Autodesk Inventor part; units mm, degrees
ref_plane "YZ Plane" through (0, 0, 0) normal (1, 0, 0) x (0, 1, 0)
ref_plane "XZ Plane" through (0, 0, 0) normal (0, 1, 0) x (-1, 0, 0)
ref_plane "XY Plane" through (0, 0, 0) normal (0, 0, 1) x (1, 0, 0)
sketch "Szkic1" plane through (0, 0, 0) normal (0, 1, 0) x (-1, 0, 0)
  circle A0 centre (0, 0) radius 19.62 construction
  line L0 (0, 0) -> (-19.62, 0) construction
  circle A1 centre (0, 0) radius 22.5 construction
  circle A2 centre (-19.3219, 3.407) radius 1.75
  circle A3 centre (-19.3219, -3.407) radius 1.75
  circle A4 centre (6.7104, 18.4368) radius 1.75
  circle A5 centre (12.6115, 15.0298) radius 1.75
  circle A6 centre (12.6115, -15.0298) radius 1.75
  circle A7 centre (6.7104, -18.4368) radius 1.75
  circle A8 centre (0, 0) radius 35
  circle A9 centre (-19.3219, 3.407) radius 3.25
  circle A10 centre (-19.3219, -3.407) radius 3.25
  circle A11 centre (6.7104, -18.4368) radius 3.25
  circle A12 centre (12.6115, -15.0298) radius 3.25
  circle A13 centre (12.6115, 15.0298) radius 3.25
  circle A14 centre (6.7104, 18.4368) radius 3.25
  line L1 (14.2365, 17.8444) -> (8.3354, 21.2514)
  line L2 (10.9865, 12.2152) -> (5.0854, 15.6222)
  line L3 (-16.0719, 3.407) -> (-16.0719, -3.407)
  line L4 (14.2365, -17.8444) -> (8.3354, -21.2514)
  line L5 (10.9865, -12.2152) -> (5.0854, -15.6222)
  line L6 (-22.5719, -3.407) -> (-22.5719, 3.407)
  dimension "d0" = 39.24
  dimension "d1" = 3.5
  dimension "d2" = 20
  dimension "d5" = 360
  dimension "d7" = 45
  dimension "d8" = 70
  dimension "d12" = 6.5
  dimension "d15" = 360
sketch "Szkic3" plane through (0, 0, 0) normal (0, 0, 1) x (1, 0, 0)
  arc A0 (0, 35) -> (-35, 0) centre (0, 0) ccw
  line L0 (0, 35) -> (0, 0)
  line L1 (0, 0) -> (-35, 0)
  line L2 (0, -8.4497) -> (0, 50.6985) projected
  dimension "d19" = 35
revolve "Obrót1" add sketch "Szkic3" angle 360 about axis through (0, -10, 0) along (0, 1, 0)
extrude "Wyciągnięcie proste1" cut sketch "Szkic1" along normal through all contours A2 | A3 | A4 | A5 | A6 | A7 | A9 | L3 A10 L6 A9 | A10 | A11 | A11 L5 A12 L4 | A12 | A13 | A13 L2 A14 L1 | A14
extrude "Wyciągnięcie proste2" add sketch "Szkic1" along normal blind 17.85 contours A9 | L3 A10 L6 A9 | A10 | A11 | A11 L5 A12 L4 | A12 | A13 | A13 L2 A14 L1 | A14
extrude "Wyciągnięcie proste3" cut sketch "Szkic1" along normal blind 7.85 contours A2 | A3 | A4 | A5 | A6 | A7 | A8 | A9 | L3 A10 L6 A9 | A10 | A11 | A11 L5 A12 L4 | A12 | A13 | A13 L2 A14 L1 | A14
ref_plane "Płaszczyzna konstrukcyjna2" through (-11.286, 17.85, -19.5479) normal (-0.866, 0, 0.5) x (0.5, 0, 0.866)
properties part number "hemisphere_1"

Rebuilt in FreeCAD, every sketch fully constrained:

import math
import FreeCAD as App
import Part
import Sketcher
from FreeCAD import Vector
Q = App.Units.Quantity

doc = App.newDocument("Part")
body = doc.addObject("PartDesign::Body", "Body")

sketch1 = body.newObject("Sketcher::SketchObject", "Sketch")
sketch1.AttachmentSupport = (doc.getObject("XY_Plane"), [""])
sketch1.MapMode = "FlatFace"
sketch1.addGeometry(Part.LineSegment(Vector(0, 0, 0), Vector(0, 35, 0)), False)
sketch1.addGeometry(Part.ArcOfCircle(Part.Circle(Vector(0, 0, 0), Vector(0, 0, 1), 35), math.radians(90), math.radians(180)), False)
sketch1.addGeometry(Part.LineSegment(Vector(-35, 0, 0), Vector(0, 0, 0)), False)
sketch1.addConstraint(Sketcher.Constraint("Coincident", 0, 2, 1, 1))
sketch1.addConstraint(Sketcher.Constraint("Coincident", 1, 2, 2, 1))
sketch1.addConstraint(Sketcher.Constraint("Coincident", 2, 2, 0, 1))
sketch1.addConstraint(Sketcher.Constraint("Vertical", 0))
sketch1.addConstraint(Sketcher.Constraint("Horizontal", 2))
sketch1.addConstraint(Sketcher.Constraint("Coincident", 1, 3, -1, 1))
sketch1.addConstraint(Sketcher.Constraint("Coincident", 2, 2, -1, 1))
sketch1.addConstraint(Sketcher.Constraint("Radius", 1, Q("35 mm")))
revolution = body.newObject("PartDesign::Revolution", "Revolution")
revolution.Profile = sketch1
revolution.ReferenceAxis = (sketch1, ["V_Axis"])
revolution.Angle = 360

sketch2 = body.newObject("Sketcher::SketchObject", "Sketch001")
sketch2.AttachmentSupport = (doc.getObject("XZ_Plane"), [""])
sketch2.MapMode = "FlatFace"
sketch2.addGeometry(Part.ArcOfCircle(Part.Circle(Vector(19.3219, 3.407, 0), Vector(0, 0, 1), 3.25), math.radians(0), math.radians(180)), False)
sketch2.addGeometry(Part.LineSegment(Vector(22.5719, 3.407, 0), Vector(22.5719, -3.407, 0)), False)
sketch2.addGeometry(Part.ArcOfCircle(Part.Circle(Vector(19.3219, -3.407, 0), Vector(0, 0, 1), 3.25), math.radians(180), math.radians(360)), False)
sketch2.addGeometry(Part.LineSegment(Vector(16.0719, -3.407, 0), Vector(16.0719, 3.407, 0)), False)
sketch2.addGeometry(Part.ArcOfCircle(Part.Circle(Vector(-6.7104, 18.4368, 0), Vector(0, 0, 1), 3.25), math.radians(-60.000154), math.radians(119.999846)), False)
sketch2.addGeometry(Part.LineSegment(Vector(-5.0854, 15.6222, 0), Vector(-10.9865, 12.2152, 0)), False)
sketch2.addGeometry(Part.ArcOfCircle(Part.Circle(Vector(-12.6115, 15.0298, 0), Vector(0, 0, 1), 3.25), math.radians(119.999846), math.radians(299.999846)), False)
sketch2.addGeometry(Part.LineSegment(Vector(-14.2365, 17.8444, 0), Vector(-8.3354, 21.2514, 0)), False)
sketch2.addGeometry(Part.LineSegment(Vector(-10.9865, -12.2152, 0), Vector(-5.0854, -15.6222, 0)), False)
sketch2.addGeometry(Part.ArcOfCircle(Part.Circle(Vector(-6.7104, -18.4368, 0), Vector(0, 0, 1), 3.25), math.radians(-119.999846), math.radians(60.000154)), False)
sketch2.addGeometry(Part.LineSegment(Vector(-8.3354, -21.2514, 0), Vector(-14.2365, -17.8444, 0)), False)
sketch2.addGeometry(Part.ArcOfCircle(Part.Circle(Vector(-12.6115, -15.0298, 0), Vector(0, 0, 1), 3.25), math.radians(60.000154), math.radians(240.000154)), False)
sketch2.addConstraint(Sketcher.Constraint("Tangent", 0, 1, 1, 1))
sketch2.addConstraint(Sketcher.Constraint("Tangent", 1, 2, 2, 2))
sketch2.addConstraint(Sketcher.Constraint("Tangent", 2, 1, 3, 1))
sketch2.addConstraint(Sketcher.Constraint("Tangent", 3, 2, 0, 2))
sketch2.addConstraint(Sketcher.Constraint("Tangent", 4, 1, 5, 1))
sketch2.addConstraint(Sketcher.Constraint("Tangent", 5, 2, 6, 2))
sketch2.addConstraint(Sketcher.Constraint("Tangent", 6, 1, 7, 1))
sketch2.addConstraint(Sketcher.Constraint("Tangent", 7, 2, 4, 2))
sketch2.addConstraint(Sketcher.Constraint("Tangent", 8, 2, 9, 2))
sketch2.addConstraint(Sketcher.Constraint("Tangent", 9, 1, 10, 1))
sketch2.addConstraint(Sketcher.Constraint("Tangent", 10, 2, 11, 2))
sketch2.addConstraint(Sketcher.Constraint("Tangent", 11, 1, 8, 1))
sketch2.addConstraint(Sketcher.Constraint("Vertical", 1))
sketch2.addConstraint(Sketcher.Constraint("Vertical", 3))
sketch2.addConstraint(Sketcher.Constraint("Equal", 2, 4))
sketch2.addConstraint(Sketcher.Constraint("Equal", 4, 6))
sketch2.addConstraint(Sketcher.Constraint("Equal", 6, 9))
sketch2.addConstraint(Sketcher.Constraint("Equal", 9, 11))
sketch2.addConstraint(Sketcher.Constraint("Symmetric", 4, 3, 9, 3, -1))
sketch2.addConstraint(Sketcher.Constraint("Symmetric", 6, 3, 11, 3, -1))
sketch2.addConstraint(Sketcher.Constraint("Radius", 0, Q("3.25 mm")))
sketch2.addConstraint(Sketcher.Constraint("Angle", 5, Q("-150 deg")))
sketch2.addConstraint(Sketcher.Constraint("DistanceY", 1, 2, 1, 1, Q("6.814 mm")))
sketch2.addConstraint(Sketcher.Constraint("Distance", 5, Q("6.814 mm")))
sketch2.addConstraint(Sketcher.Constraint("DistanceX", -1, 1, 0, 3, Q("19.322 mm")))
sketch2.addConstraint(Sketcher.Constraint("DistanceY", -1, 1, 0, 3, Q("3.407 mm")))
sketch2.addConstraint(Sketcher.Constraint("DistanceY", 11, 3, 5, 2, Q("27.245 mm")))
sketch2.addConstraint(Sketcher.Constraint("DistanceX", 4, 3, -1, 1, Q("6.7104 mm")))
pocket1 = body.newObject("PartDesign::Pocket", "Pocket")
pocket1.Profile = sketch2
pocket1.Type = "ThroughAll"

sketch3 = body.newObject("Sketcher::SketchObject", "Sketch002")
sketch3.AttachmentSupport = (doc.getObject("XZ_Plane"), [""])
sketch3.MapMode = "FlatFace"
sketch3.addGeometry(Part.ArcOfCircle(Part.Circle(Vector(19.3219, 3.407, 0), Vector(0, 0, 1), 3.25), math.radians(0), math.radians(180)), False)
sketch3.addGeometry(Part.LineSegment(Vector(22.5719, 3.407, 0), Vector(22.5719, -3.407, 0)), False)
sketch3.addGeometry(Part.ArcOfCircle(Part.Circle(Vector(19.3219, -3.407, 0), Vector(0, 0, 1), 3.25), math.radians(180), math.radians(360)), False)
sketch3.addGeometry(Part.LineSegment(Vector(16.0719, -3.407, 0), Vector(16.0719, 3.407, 0)), False)
sketch3.addGeometry(Part.Circle(Vector(19.3219, 3.407, 0), Vector(0, 0, 1), 1.75), False)
sketch3.addGeometry(Part.Circle(Vector(19.3219, -3.407, 0), Vector(0, 0, 1), 1.75), False)
sketch3.addGeometry(Part.ArcOfCircle(Part.Circle(Vector(-6.7104, -18.4368, 0), Vector(0, 0, 1), 3.25), math.radians(-119.999846), math.radians(60.000154)), False)
sketch3.addGeometry(Part.LineSegment(Vector(-8.3354, -21.2514, 0), Vector(-14.2365, -17.8444, 0)), False)
sketch3.addGeometry(Part.ArcOfCircle(Part.Circle(Vector(-12.6115, -15.0298, 0), Vector(0, 0, 1), 3.25), math.radians(60.000154), math.radians(240.000154)), False)
sketch3.addGeometry(Part.LineSegment(Vector(-10.9865, -12.2152, 0), Vector(-5.0854, -15.6222, 0)), False)
sketch3.addGeometry(Part.Circle(Vector(-6.7104, -18.4368, 0), Vector(0, 0, 1), 1.75), False)
sketch3.addGeometry(Part.Circle(Vector(-12.6115, -15.0298, 0), Vector(0, 0, 1), 1.75), False)
sketch3.addGeometry(Part.ArcOfCircle(Part.Circle(Vector(-12.6115, 15.0298, 0), Vector(0, 0, 1), 3.25), math.radians(119.999846), math.radians(299.999846)), False)
sketch3.addGeometry(Part.LineSegment(Vector(-14.2365, 17.8444, 0), Vector(-8.3354, 21.2514, 0)), False)
sketch3.addGeometry(Part.ArcOfCircle(Part.Circle(Vector(-6.7104, 18.4368, 0), Vector(0, 0, 1), 3.25), math.radians(-60.000154), math.radians(119.999846)), False)
sketch3.addGeometry(Part.LineSegment(Vector(-5.0854, 15.6222, 0), Vector(-10.9865, 12.2152, 0)), False)
sketch3.addGeometry(Part.Circle(Vector(-12.6115, 15.0298, 0), Vector(0, 0, 1), 1.75), False)
sketch3.addGeometry(Part.Circle(Vector(-6.7104, 18.4368, 0), Vector(0, 0, 1), 1.75), False)
sketch3.addConstraint(Sketcher.Constraint("Tangent", 0, 1, 1, 1))
sketch3.addConstraint(Sketcher.Constraint("Tangent", 1, 2, 2, 2))
sketch3.addConstraint(Sketcher.Constraint("Tangent", 2, 1, 3, 1))
sketch3.addConstraint(Sketcher.Constraint("Tangent", 3, 2, 0, 2))
sketch3.addConstraint(Sketcher.Constraint("Tangent", 6, 1, 7, 1))
sketch3.addConstraint(Sketcher.Constraint("Tangent", 7, 2, 8, 2))
sketch3.addConstraint(Sketcher.Constraint("Tangent", 8, 1, 9, 1))
sketch3.addConstraint(Sketcher.Constraint("Tangent", 9, 2, 6, 2))
sketch3.addConstraint(Sketcher.Constraint("Tangent", 12, 1, 13, 1))
sketch3.addConstraint(Sketcher.Constraint("Tangent", 13, 2, 14, 2))
sketch3.addConstraint(Sketcher.Constraint("Tangent", 14, 1, 15, 1))
sketch3.addConstraint(Sketcher.Constraint("Tangent", 15, 2, 12, 2))
sketch3.addConstraint(Sketcher.Constraint("Vertical", 1))
sketch3.addConstraint(Sketcher.Constraint("Vertical", 3))
sketch3.addConstraint(Sketcher.Constraint("Coincident", 4, 3, 0, 3))
sketch3.addConstraint(Sketcher.Constraint("Coincident", 5, 3, 2, 3))
sketch3.addConstraint(Sketcher.Constraint("Coincident", 10, 3, 6, 3))
sketch3.addConstraint(Sketcher.Constraint("Coincident", 11, 3, 8, 3))
sketch3.addConstraint(Sketcher.Constraint("Coincident", 16, 3, 12, 3))
sketch3.addConstraint(Sketcher.Constraint("Coincident", 17, 3, 14, 3))
sketch3.addConstraint(Sketcher.Constraint("Equal", 4, 5))
sketch3.addConstraint(Sketcher.Constraint("Equal", 2, 6))
sketch3.addConstraint(Sketcher.Constraint("Equal", 6, 8))
sketch3.addConstraint(Sketcher.Constraint("Equal", 5, 10))
sketch3.addConstraint(Sketcher.Constraint("Equal", 10, 11))
sketch3.addConstraint(Sketcher.Constraint("Equal", 8, 12))
sketch3.addConstraint(Sketcher.Constraint("Equal", 12, 14))
sketch3.addConstraint(Sketcher.Constraint("Equal", 11, 16))
sketch3.addConstraint(Sketcher.Constraint("Equal", 16, 17))
sketch3.addConstraint(Sketcher.Constraint("Symmetric", 8, 3, 12, 3, -1))
sketch3.addConstraint(Sketcher.Constraint("Symmetric", 6, 3, 14, 3, -1))
sketch3.addConstraint(Sketcher.Constraint("Diameter", 4, Q("3.5 mm")))
sketch3.addConstraint(Sketcher.Constraint("Radius", 0, Q("3.25 mm")))
sketch3.addConstraint(Sketcher.Constraint("Angle", 7, Q("150 deg")))
sketch3.addConstraint(Sketcher.Constraint("DistanceY", 1, 2, 1, 1, Q("6.814 mm")))
sketch3.addConstraint(Sketcher.Constraint("Distance", 7, Q("6.814 mm")))
sketch3.addConstraint(Sketcher.Constraint("DistanceX", -1, 1, 0, 3, Q("19.322 mm")))
sketch3.addConstraint(Sketcher.Constraint("DistanceY", -1, 1, 0, 3, Q("3.407 mm")))
sketch3.addConstraint(Sketcher.Constraint("DistanceX", 6, 3, -1, 1, Q("6.7104 mm")))
sketch3.addConstraint(Sketcher.Constraint("DistanceY", 6, 3, -1, 1, Q("18.4368 mm")))
pad1 = body.newObject("PartDesign::Pad", "Pad")
pad1.Profile = sketch3
pad1.Length = 17.85
pad1.Reversed = True

sketch4 = body.newObject("Sketcher::SketchObject", "Sketch003")
sketch4.AttachmentSupport = (doc.getObject("XZ_Plane"), [""])
sketch4.MapMode = "FlatFace"
sketch4.addGeometry(Part.Circle(Vector(0, 0, 0), Vector(0, 0, 1), 35), False)
sketch4.addConstraint(Sketcher.Constraint("Coincident", 0, 3, -1, 1))
sketch4.addConstraint(Sketcher.Constraint("Diameter", 0, Q("70 mm")))
pocket2 = body.newObject("PartDesign::Pocket", "Pocket001")
pocket2.Profile = sketch4
pocket2.Length = 7.85

doc.recompute()
